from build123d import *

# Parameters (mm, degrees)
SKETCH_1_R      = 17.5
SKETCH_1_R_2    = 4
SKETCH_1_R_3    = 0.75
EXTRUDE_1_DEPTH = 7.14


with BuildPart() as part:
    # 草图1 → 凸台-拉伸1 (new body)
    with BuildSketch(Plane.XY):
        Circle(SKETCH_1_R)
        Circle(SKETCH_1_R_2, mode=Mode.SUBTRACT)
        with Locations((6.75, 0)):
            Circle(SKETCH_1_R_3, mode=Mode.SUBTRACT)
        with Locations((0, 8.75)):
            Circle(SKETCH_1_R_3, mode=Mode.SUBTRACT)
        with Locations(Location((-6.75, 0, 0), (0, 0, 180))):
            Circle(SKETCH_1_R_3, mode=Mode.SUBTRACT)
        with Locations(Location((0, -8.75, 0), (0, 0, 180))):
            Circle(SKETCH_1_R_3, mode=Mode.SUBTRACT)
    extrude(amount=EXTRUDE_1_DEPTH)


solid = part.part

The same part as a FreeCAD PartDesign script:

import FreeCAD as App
import Part
import Sketcher
from FreeCAD import Vector

doc = App.newDocument("Part")
body = doc.addObject("PartDesign::Body", "Body")

# Sketch on XY plane
sketch1 = body.newObject("Sketcher::SketchObject", "Sketch")
sketch1.AttachmentSupport = (doc.getObject("XY_Plane"), [""])
sketch1.MapMode = "FlatFace"
sketch1.addGeometry(Part.Circle(Vector(0, 0, 0), Vector(0, 0, 1), 17.5), False)
sketch1.addGeometry(Part.Circle(Vector(0, -8.75, 0), Vector(0, 0, 1), 0.75), False)
sketch1.addGeometry(Part.Circle(Vector(-6.75, 0, 0), Vector(0, 0, 1), 0.75), False)
sketch1.addGeometry(Part.Circle(Vector(0, 0, 0), Vector(0, 0, 1), 4), False)
sketch1.addGeometry(Part.Circle(Vector(6.75, 0, 0), Vector(0, 0, 1), 0.75), False)
sketch1.addGeometry(Part.Circle(Vector(0, 8.75, 0), Vector(0, 0, 1), 0.75), False)
sketch1.addConstraint(Sketcher.Constraint("Coincident", 0, 3, -1, 1))
sketch1.addConstraint(Sketcher.Constraint("Coincident", 3, 3, -1, 1))
sketch1.addConstraint(Sketcher.Constraint("Equal", 1, 2))
sketch1.addConstraint(Sketcher.Constraint("Equal", 2, 4))
sketch1.addConstraint(Sketcher.Constraint("Equal", 4, 5))
sketch1.addConstraint(Sketcher.Constraint("Symmetric", 2, 3, 4, 3, -1, 1))
sketch1.addConstraint(Sketcher.Constraint("Symmetric", 1, 3, 5, 3, -1, 1))
sketch1.addConstraint(Sketcher.Constraint("PointOnObject", 1, 3, -2))
sketch1.addConstraint(Sketcher.Constraint("PointOnObject", 2, 3, -1))
sketch1.addConstraint(Sketcher.Constraint("Diameter", 0, 35.0))
sketch1.addConstraint(Sketcher.Constraint("Diameter", 3, 8.0))
sketch1.addConstraint(Sketcher.Constraint("Diameter", 1, 1.5))
sketch1.addConstraint(Sketcher.Constraint("DistanceX", 2, 3, 4, 3, 13.5))
sketch1.addConstraint(Sketcher.Constraint("DistanceY", 1, 3, 5, 3, 17.5))
pad1 = body.newObject("PartDesign::Pad", "Pad")
pad1.Profile = sketch1
pad1.Length = 7.14

doc.recompute()
